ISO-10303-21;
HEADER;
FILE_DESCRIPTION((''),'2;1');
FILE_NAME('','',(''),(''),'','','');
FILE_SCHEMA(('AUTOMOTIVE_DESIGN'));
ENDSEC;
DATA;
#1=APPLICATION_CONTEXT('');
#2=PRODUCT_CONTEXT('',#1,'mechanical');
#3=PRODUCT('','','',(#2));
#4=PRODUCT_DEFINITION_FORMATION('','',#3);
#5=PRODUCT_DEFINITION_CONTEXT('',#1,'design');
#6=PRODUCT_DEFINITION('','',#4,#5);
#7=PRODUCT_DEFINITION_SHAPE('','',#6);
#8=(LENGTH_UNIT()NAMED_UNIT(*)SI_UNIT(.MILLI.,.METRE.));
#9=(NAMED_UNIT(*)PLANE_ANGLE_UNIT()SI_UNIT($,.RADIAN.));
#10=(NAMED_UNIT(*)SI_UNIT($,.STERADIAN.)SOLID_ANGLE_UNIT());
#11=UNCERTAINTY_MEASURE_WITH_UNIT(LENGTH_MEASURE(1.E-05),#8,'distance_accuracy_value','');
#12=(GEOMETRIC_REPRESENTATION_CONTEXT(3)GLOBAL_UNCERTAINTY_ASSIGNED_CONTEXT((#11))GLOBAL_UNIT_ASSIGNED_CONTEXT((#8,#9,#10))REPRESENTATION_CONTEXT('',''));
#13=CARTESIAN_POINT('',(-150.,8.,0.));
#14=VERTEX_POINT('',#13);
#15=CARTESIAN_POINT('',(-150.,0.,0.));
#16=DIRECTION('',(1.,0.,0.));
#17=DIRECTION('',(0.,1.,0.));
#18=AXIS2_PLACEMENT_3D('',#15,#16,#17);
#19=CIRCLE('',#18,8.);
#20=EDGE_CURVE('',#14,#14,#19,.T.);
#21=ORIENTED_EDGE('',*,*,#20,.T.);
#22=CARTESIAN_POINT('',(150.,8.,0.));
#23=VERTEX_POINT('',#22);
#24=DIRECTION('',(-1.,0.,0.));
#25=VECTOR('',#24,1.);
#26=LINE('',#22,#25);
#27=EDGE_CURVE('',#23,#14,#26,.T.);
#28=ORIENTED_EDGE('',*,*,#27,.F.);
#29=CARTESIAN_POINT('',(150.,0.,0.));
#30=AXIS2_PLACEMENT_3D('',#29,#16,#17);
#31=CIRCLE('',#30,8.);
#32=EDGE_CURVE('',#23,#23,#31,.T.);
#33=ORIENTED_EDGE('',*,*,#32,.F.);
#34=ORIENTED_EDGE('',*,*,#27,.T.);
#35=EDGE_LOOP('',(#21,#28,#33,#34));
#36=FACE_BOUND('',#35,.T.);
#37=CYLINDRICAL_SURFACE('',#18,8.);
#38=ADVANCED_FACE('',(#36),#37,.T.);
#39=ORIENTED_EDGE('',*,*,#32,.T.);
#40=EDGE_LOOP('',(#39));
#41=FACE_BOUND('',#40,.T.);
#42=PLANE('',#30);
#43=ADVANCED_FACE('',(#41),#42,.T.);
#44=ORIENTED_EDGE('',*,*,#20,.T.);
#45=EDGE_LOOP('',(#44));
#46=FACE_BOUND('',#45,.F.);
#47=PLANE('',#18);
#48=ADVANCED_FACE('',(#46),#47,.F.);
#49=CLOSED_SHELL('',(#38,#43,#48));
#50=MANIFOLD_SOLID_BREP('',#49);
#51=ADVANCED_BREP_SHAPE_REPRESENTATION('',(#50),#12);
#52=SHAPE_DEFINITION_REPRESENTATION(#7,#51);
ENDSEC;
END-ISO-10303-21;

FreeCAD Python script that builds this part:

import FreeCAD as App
import Part
import Sketcher


def add_polygon(sketch, points):
    """Adds a closed chain of lines whose ends are joined by coincident constraints."""
    first, n = sketch.GeometryCount, len(points)
    for a, b in zip(points, points[1:] + points[:1]):
        sketch.addGeometry(Part.LineSegment(App.Vector(*a, 0), App.Vector(*b, 0)), False)
    for i in range(n):
        sketch.addConstraint(Sketcher.Constraint("Coincident", first + i, 2, first + (i + 1) % n, 1))

doc = App.newDocument("Part")
body = doc.addObject("PartDesign::Body", "Body")

# Sketch on XY plane
sketch1 = body.newObject("Sketcher::SketchObject", "Sketch")
sketch1.AttachmentSupport = (doc.getObject("XY_Plane"), [""])
sketch1.MapMode = "FlatFace"
add_polygon(sketch1, [(150, 0), (150, 8), (-150, 8), (-150, 0)])  # lines 0-3
sketch1.addConstraint([
    Sketcher.Constraint("Vertical", 0),
    Sketcher.Constraint("Horizontal", 1),
    Sketcher.Constraint("Vertical", 2),
    Sketcher.Constraint("Horizontal", 3),
    Sketcher.Constraint("Symmetric", 2, 2, 3, 2, -1, 1),
    Sketcher.Constraint("DistanceX", 1, 2, 1, 1, 300.0),
    Sketcher.Constraint("DistanceY", 0, 1, 0, 2, 8.0),
])
revolution = body.newObject("PartDesign::Revolution", "Revolution")
revolution.Profile = sketch1
revolution.ReferenceAxis = (sketch1, ["H_Axis"])
revolution.Angle = 360

doc.recompute()
